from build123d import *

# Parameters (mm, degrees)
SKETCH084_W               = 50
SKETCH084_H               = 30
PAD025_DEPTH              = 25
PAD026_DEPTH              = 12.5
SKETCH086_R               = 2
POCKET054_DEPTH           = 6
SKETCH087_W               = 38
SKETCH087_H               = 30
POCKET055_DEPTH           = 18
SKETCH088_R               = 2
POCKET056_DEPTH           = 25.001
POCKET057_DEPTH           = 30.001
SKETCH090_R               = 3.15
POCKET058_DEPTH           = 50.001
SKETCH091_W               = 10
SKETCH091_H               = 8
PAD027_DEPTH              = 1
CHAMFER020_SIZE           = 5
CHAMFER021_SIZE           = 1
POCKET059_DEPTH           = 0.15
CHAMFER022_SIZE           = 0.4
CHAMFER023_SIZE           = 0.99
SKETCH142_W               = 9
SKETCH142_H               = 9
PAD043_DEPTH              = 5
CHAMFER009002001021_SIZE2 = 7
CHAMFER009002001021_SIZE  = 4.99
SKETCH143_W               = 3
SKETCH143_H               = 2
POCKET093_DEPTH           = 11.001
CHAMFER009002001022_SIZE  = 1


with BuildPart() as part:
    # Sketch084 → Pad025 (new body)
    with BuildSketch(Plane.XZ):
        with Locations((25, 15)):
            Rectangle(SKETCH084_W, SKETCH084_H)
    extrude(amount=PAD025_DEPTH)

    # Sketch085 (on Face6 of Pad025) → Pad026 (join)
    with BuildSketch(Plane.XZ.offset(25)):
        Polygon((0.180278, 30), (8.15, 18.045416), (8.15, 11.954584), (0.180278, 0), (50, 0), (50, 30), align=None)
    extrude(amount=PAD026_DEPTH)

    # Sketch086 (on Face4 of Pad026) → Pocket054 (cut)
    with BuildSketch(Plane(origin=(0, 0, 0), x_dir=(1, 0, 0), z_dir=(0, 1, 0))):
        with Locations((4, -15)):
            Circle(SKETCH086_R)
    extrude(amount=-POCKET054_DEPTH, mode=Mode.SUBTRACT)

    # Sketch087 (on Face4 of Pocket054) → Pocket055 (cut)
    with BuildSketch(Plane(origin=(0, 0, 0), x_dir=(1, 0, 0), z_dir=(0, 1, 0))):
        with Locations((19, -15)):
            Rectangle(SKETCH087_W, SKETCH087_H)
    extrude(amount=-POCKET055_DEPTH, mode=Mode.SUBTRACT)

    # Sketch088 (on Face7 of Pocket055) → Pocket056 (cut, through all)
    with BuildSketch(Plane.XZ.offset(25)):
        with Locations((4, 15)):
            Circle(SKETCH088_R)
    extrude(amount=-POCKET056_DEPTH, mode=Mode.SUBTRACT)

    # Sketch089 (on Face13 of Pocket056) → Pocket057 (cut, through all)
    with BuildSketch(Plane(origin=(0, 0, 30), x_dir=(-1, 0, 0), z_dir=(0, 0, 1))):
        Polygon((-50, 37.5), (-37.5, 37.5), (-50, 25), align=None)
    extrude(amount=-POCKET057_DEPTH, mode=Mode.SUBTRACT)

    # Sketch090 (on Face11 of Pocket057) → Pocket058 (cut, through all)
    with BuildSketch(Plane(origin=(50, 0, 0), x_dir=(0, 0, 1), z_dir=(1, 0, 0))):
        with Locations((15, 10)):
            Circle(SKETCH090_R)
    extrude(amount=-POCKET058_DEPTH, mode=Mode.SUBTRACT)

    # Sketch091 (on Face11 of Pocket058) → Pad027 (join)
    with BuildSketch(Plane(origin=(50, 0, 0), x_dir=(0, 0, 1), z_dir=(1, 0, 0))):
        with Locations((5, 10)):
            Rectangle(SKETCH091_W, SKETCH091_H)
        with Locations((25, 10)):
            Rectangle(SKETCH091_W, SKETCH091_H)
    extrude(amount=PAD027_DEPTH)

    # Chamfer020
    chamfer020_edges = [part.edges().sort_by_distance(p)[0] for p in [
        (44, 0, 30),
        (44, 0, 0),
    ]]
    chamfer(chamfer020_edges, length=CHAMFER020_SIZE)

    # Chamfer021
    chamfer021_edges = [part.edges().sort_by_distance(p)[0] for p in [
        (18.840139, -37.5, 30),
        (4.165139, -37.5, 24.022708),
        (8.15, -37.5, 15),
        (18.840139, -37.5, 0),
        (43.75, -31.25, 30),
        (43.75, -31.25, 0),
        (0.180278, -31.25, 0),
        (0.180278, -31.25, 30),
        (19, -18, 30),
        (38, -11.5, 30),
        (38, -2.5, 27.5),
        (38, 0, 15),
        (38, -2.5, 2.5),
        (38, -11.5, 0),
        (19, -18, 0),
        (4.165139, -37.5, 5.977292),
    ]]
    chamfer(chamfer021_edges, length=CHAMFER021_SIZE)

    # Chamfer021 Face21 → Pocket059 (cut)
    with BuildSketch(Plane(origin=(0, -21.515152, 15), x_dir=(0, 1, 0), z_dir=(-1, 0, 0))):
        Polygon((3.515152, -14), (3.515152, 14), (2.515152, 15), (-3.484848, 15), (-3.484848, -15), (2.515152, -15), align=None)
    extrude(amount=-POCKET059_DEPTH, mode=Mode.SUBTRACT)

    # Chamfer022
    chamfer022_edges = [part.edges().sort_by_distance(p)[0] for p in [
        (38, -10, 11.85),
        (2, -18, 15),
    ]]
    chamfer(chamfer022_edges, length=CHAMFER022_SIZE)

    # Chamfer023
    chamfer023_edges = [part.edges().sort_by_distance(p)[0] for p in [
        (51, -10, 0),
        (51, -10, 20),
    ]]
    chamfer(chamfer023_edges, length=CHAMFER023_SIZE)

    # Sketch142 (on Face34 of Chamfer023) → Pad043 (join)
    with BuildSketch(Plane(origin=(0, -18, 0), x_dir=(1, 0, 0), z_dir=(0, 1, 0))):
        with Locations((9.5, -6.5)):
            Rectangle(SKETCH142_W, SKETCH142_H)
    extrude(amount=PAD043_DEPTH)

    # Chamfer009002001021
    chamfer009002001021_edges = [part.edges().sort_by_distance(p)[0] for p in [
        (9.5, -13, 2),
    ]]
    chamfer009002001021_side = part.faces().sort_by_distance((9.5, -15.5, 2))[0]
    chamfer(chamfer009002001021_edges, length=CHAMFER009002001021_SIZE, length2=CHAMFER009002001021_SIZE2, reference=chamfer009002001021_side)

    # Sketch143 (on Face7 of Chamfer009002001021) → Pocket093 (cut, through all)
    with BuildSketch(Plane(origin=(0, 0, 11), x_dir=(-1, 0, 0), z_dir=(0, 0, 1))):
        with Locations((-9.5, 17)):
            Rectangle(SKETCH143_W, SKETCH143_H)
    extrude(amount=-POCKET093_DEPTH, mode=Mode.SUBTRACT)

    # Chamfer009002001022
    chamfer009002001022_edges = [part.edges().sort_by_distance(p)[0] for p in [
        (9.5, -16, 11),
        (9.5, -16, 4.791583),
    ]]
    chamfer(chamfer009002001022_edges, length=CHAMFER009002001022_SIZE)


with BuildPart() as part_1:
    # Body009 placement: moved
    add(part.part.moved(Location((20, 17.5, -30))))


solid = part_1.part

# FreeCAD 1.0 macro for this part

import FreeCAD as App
import Part
import Sketcher
Q = App.Units.Quantity


def edges_at(feature, points):
    """Names of the edges that pass closest to the given points."""
    edges = feature.Shape.Edges
    near = lambda p: min(range(len(edges)), key=lambda i: edges[i].distToShape(Part.Vertex(*p))[0])
    return sorted({f"Edge{near(p) + 1}" for p in points})


def add_polygon(sketch, points):
    """Adds a closed chain of lines whose ends are joined by coincident constraints."""
    first, n = sketch.GeometryCount, len(points)
    for a, b in zip(points, points[1:] + points[:1]):
        sketch.addGeometry(Part.LineSegment(App.Vector(*a, 0), App.Vector(*b, 0)), False)
    for i in range(n):
        sketch.addConstraint(Sketcher.Constraint("Coincident", first + i, 2, first + (i + 1) % n, 1))

doc = App.newDocument("Part")
body = doc.addObject("PartDesign::Body", "Body")

# Sketch on XZ plane
sketch1 = body.newObject("Sketcher::SketchObject", "Sketch")
sketch1.AttachmentSupport = (doc.getObject("XZ_Plane"), [""])
sketch1.MapMode = "FlatFace"
add_polygon(sketch1, [(0, 30), (0, 0), (50, 0), (50, 30)])  # lines 0-3
sketch1.addConstraint(Sketcher.Constraint("Vertical", 0))
sketch1.addConstraint(Sketcher.Constraint("Horizontal", 1))
sketch1.addConstraint(Sketcher.Constraint("Vertical", 2))
sketch1.addConstraint(Sketcher.Constraint("Horizontal", 3))
sketch1.addConstraint(Sketcher.Constraint("Coincident", 0, 2, -1, 1))
sketch1.addConstraint(Sketcher.Constraint("DistanceX", 1, 1, 1, 2, Q("50 mm")))
sketch1.addConstraint(Sketcher.Constraint("DistanceY", 0, 2, 0, 1, Q("30 mm")))
pad1 = body.newObject("PartDesign::Pad", "Pad")
pad1.Profile = sketch1
pad1.Length = 25

# Sketch on XZ plane
sketch2 = body.newObject("Sketcher::SketchObject", "Sketch001")
sketch2.AttachmentSupport = (doc.getObject("XZ_Plane"), [""])
sketch2.MapMode = "FlatFace"
sketch2.AttachmentOffset = App.Placement(App.Vector(0, 0, 25), App.Rotation())
add_polygon(sketch2, [(0, 30), (8, 18), (8, 12), (0, 0), (50, 0), (50, 30)])  # lines 0-5
sketch2.addConstraint(Sketcher.Constraint("Vertical", 1))
sketch2.addConstraint(Sketcher.Constraint("Horizontal", 3))
sketch2.addConstraint(Sketcher.Constraint("Vertical", 4))
sketch2.addConstraint(Sketcher.Constraint("Horizontal", 5))
sketch2.addConstraint(Sketcher.Constraint("PointOnObject", 2, 2, -1))
sketch2.addConstraint(Sketcher.Constraint("Vertical", 2, 2, 5, 2))
sketch2.addConstraint(Sketcher.Constraint("Equal", 0, 2))
sketch2.addConstraint(Sketcher.Constraint("DistanceY", 4, 1, 4, 2, Q("30 mm")))
sketch2.addConstraint(Sketcher.Constraint("DistanceX", -1, 1, 3, 2, Q("50 mm")))
sketch2.addConstraint(Sketcher.Constraint("DistanceX", -1, 1, 0, 2, Q("8.15 mm")))
sketch2.addConstraint(Sketcher.Constraint("DistanceY", 1, 2, 1, 1, Q("6.090832 mm")))
sketch2.addConstraint(Sketcher.Constraint("Distance", 0, Q("14.367621 mm")))
pad2 = body.newObject("PartDesign::Pad", "Pad001")
pad2.Profile = sketch2
pad2.Length = 12.5

# Sketch on XZ plane
sketch3 = body.newObject("Sketcher::SketchObject", "Sketch002")
sketch3.AttachmentSupport = (doc.getObject("XZ_Plane"), [""])
sketch3.MapMode = "FlatFace"
sketch3.addGeometry(Part.Circle(App.Vector(4, 15, 0), App.Vector(0, 0, 1), 2), False)
sketch3.addConstraint(Sketcher.Constraint("Diameter", 0, Q("4 mm")))
sketch3.addConstraint(Sketcher.Constraint("DistanceX", -1, 1, 0, 3, Q("4 mm")))
sketch3.addConstraint(Sketcher.Constraint("DistanceY", -1, 1, 0, 3, Q("15 mm")))
pocket1 = body.newObject("PartDesign::Pocket", "Pocket")
pocket1.Profile = sketch3
pocket1.Length = 6
pocket1.Reversed = True

# Sketch on XZ plane
sketch4 = body.newObject("Sketcher::SketchObject", "Sketch003")
sketch4.AttachmentSupport = (doc.getObject("XZ_Plane"), [""])
sketch4.MapMode = "FlatFace"
add_polygon(sketch4, [(0, 0), (0, 30), (38, 30), (38, 0)])  # lines 0-3
sketch4.addConstraint(Sketcher.Constraint("Vertical", 0))
sketch4.addConstraint(Sketcher.Constraint("Horizontal", 1))
sketch4.addConstraint(Sketcher.Constraint("Vertical", 2))
sketch4.addConstraint(Sketcher.Constraint("Horizontal", 3))
sketch4.addConstraint(Sketcher.Constraint("Coincident", 3, 2, -1, 1))
sketch4.addConstraint(Sketcher.Constraint("DistanceX", 1, 1, 1, 2, Q("38 mm")))
sketch4.addConstraint(Sketcher.Constraint("DistanceY", 0, 1, 0, 2, Q("30 mm")))
pocket2 = body.newObject("PartDesign::Pocket", "Pocket001")
pocket2.Profile = sketch4
pocket2.Length = 18
pocket2.Reversed = True

# Sketch on XZ plane
sketch5 = body.newObject("Sketcher::SketchObject", "Sketch004")
sketch5.AttachmentSupport = (doc.getObject("XZ_Plane"), [""])
sketch5.MapMode = "FlatFace"
sketch5.AttachmentOffset = App.Placement(App.Vector(0, 0, 25), App.Rotation())
sketch5.addGeometry(Part.Circle(App.Vector(4, 15, 0), App.Vector(0, 0, 1), 2), False)
sketch5.addConstraint(Sketcher.Constraint("Diameter", 0, Q("4 mm")))
sketch5.addConstraint(Sketcher.Constraint("DistanceX", -1, 1, 0, 3, Q("4 mm")))
sketch5.addConstraint(Sketcher.Constraint("DistanceY", -1, 1, 0, 3, Q("15 mm")))
pocket3 = body.newObject("PartDesign::Pocket", "Pocket002")
pocket3.Profile = sketch5
pocket3.Type = "ThroughAll"

# Sketch on XY plane
sketch6 = body.newObject("Sketcher::SketchObject", "Sketch005")
sketch6.AttachmentSupport = (doc.getObject("XY_Plane"), [""])
sketch6.MapMode = "FlatFace"
sketch6.AttachmentOffset = App.Placement(App.Vector(0, 0, 30), App.Rotation())
add_polygon(sketch6, [(38, -38), (50, -38), (50, -25)])  # lines 0-2
sketch6.addConstraint(Sketcher.Constraint("Horizontal", 0))
sketch6.addConstraint(Sketcher.Constraint("Vertical", 1))
sketch6.addConstraint(Sketcher.Constraint("Equal", 0, 1))
sketch6.addConstraint(Sketcher.Constraint("DistanceX", 0, 1, 0, 2, Q("12.5 mm")))
sketch6.addConstraint(Sketcher.Constraint("DistanceX", -1, 1, 0, 2, Q("50 mm")))
sketch6.addConstraint(Sketcher.Constraint("DistanceY", 1, 2, -1, 1, Q("25 mm")))
pocket4 = body.newObject("PartDesign::Pocket", "Pocket003")
pocket4.Profile = sketch6
pocket4.Type = "ThroughAll"

# Sketch on YZ plane
sketch7 = body.newObject("Sketcher::SketchObject", "Sketch006")
sketch7.AttachmentSupport = (doc.getObject("YZ_Plane"), [""])
sketch7.MapMode = "FlatFace"
sketch7.AttachmentOffset = App.Placement(App.Vector(0, 0, 50), App.Rotation())
sketch7.addGeometry(Part.Circle(App.Vector(-10, 15, 0), App.Vector(0, 0, 1), 3.1), False)
sketch7.addConstraint(Sketcher.Constraint("Diameter", 0, Q("6.3 mm")))
sketch7.addConstraint(Sketcher.Constraint("DistanceX", 0, 3, -1, 1, Q("10 mm")))
sketch7.addConstraint(Sketcher.Constraint("DistanceY", -1, 1, 0, 3, Q("15 mm")))
pocket5 = body.newObject("PartDesign::Pocket", "Pocket004")
pocket5.Profile = sketch7
pocket5.Type = "ThroughAll"

# Sketch on YZ plane
sketch8 = body.newObject("Sketcher::SketchObject", "Sketch007")
sketch8.AttachmentSupport = (doc.getObject("YZ_Plane"), [""])
sketch8.MapMode = "FlatFace"
sketch8.AttachmentOffset = App.Placement(App.Vector(0, 0, 50), App.Rotation())
add_polygon(sketch8, [(-14, 0), (-6, 0), (-6, 10), (-14, 10)])  # lines 0-3
add_polygon(sketch8, [(-14, 20), (-6, 20), (-6, 30), (-14, 30)])  # lines 4-7
sketch8.addConstraint(Sketcher.Constraint("Horizontal", 0))
sketch8.addConstraint(Sketcher.Constraint("Vertical", 1))
sketch8.addConstraint(Sketcher.Constraint("Horizontal", 2))
sketch8.addConstraint(Sketcher.Constraint("Vertical", 3))
sketch8.addConstraint(Sketcher.Constraint("Horizontal", 4))
sketch8.addConstraint(Sketcher.Constraint("Vertical", 5))
sketch8.addConstraint(Sketcher.Constraint("Horizontal", 6))
sketch8.addConstraint(Sketcher.Constraint("Vertical", 7))
sketch8.addConstraint(Sketcher.Constraint("PointOnObject", 0, 2, -1))
sketch8.addConstraint(Sketcher.Constraint("Vertical", 1, 2, 4, 2))
sketch8.addConstraint(Sketcher.Constraint("Vertical", 3, 2, 6, 2))
sketch8.addConstraint(Sketcher.Constraint("Equal", 3, 5))
sketch8.addConstraint(Sketcher.Constraint("DistanceX", 0, 1, 0, 2, Q("8 mm")))
sketch8.addConstraint(Sketcher.Constraint("DistanceY", 1, 1, 1, 2, Q("10 mm")))
sketch8.addConstraint(Sketcher.Constraint("DistanceX", 0, 2, -1, 1, Q("6 mm")))
sketch8.addConstraint(Sketcher.Constraint("DistanceY", -1, 1, 4, 2, Q("20 mm")))
pad3 = body.newObject("PartDesign::Pad", "Pad002")
pad3.Profile = sketch8
pad3.Length = 1
doc.recompute()

chamfer = body.newObject("PartDesign::Chamfer", "Chamfer")
chamfer.Base = (pad3, edges_at(pad3, [(44, 0, 30), (44, 0, 0)]))
chamfer.Size = 5
doc.recompute()

chamfer2 = body.newObject("PartDesign::Chamfer", "Chamfer001")
chamfer2.Base = (chamfer, edges_at(chamfer, [
    (18.84, -37.5, 30),
    (4.165, -37.5, 24.023),
    (8.15, -37.5, 15),
    (18.84, -37.5, 0),
    (43.75, -31.25, 30),
    (43.75, -31.25, 0),
    (0.18, -31.25, 0),
    (0.18, -31.25, 30),
    (19, -18, 30),
    (38, -11.5, 30),
    (38, -2.5, 27.5),
    (38, 0, 15),
    (38, -2.5, 2.5),
    (38, -11.5, 0),
    (19, -18, 0),
    (4.165, -37.5, 5.977),
]))
chamfer2.Size = 1

# Sketch on YZ plane
sketch9 = body.newObject("Sketcher::SketchObject", "Sketch008")
sketch9.AttachmentSupport = (doc.getObject("YZ_Plane"), [""])
sketch9.MapMode = "FlatFace"
add_polygon(sketch9, [(-18, 29), (-18, 1), (-19, 0), (-25, 0), (-25, 30), (-19, 30)])  # lines 0-5
sketch9.addConstraint(Sketcher.Constraint("Vertical", 0))
sketch9.addConstraint(Sketcher.Constraint("Horizontal", 2))
sketch9.addConstraint(Sketcher.Constraint("Vertical", 3))
sketch9.addConstraint(Sketcher.Constraint("Horizontal", 4))
sketch9.addConstraint(Sketcher.Constraint("PointOnObject", 1, 2, -1))
sketch9.addConstraint(Sketcher.Constraint("Perpendicular", 1, 5))
sketch9.addConstraint(Sketcher.Constraint("Vertical", 1, 2, 4, 2))
sketch9.addConstraint(Sketcher.Constraint("Equal", 1, 5))
sketch9.addConstraint(Sketcher.Constraint("DistanceX", 2, 2, 2, 1, Q("6 mm")))
sketch9.addConstraint(Sketcher.Constraint("DistanceY", 0, 2, 0, 1, Q("28 mm")))
sketch9.addConstraint(Sketcher.Constraint("DistanceY", 3, 1, 3, 2, Q("30 mm")))
sketch9.addConstraint(Sketcher.Constraint("DistanceX", 0, 2, -1, 1, Q("18 mm")))
pocket6 = body.newObject("PartDesign::Pocket", "Pocket005")
pocket6.Profile = sketch9
pocket6.Length = 0.15
pocket6.Reversed = True
doc.recompute()

chamfer3 = body.newObject("PartDesign::Chamfer", "Chamfer002")
chamfer3.Base = (pocket6, edges_at(pocket6, [(38, -10, 11.85), (2, -18, 15)]))
chamfer3.Size = 0.4
doc.recompute()

chamfer4 = body.newObject("PartDesign::Chamfer", "Chamfer003")
chamfer4.Base = (chamfer3, edges_at(chamfer3, [(51, -10, 0), (51, -10, 20)]))
chamfer4.Size = 0.99

# Sketch on XZ plane
sketch10 = body.newObject("Sketcher::SketchObject", "Sketch009")
sketch10.AttachmentSupport = (doc.getObject("XZ_Plane"), [""])
sketch10.MapMode = "FlatFace"
sketch10.AttachmentOffset = App.Placement(App.Vector(0, 0, 18), App.Rotation())
add_polygon(sketch10, [(5, 2), (5, 11), (14, 11), (14, 2)])  # lines 0-3
sketch10.addConstraint(Sketcher.Constraint("Vertical", 0))
sketch10.addConstraint(Sketcher.Constraint("Horizontal", 1))
sketch10.addConstraint(Sketcher.Constraint("Vertical", 2))
sketch10.addConstraint(Sketcher.Constraint("Horizontal", 3))
sketch10.addConstraint(Sketcher.Constraint("Equal", 3, 0))
sketch10.addConstraint(Sketcher.Constraint("DistanceX", 1, 1, 1, 2, Q("9 mm")))
sketch10.addConstraint(Sketcher.Constraint("DistanceX", -1, 1, 0, 2, Q("5 mm")))
sketch10.addConstraint(Sketcher.Constraint("DistanceY", -1, 1, 0, 2, Q("11 mm")))
pad4 = body.newObject("PartDesign::Pad", "Pad003")
pad4.Profile = sketch10
pad4.Length = 5
pad4.Reversed = True
doc.recompute()

chamfer5 = body.newObject("PartDesign::Chamfer", "Chamfer004")
chamfer5.Base = (pad4, edges_at(pad4, [(9.5, -13, 2)]))
chamfer5.ChamferType = "Two distances"
chamfer5.Size = 4.99
chamfer5.Size2 = 7

# Sketch on XY plane
sketch11 = body.newObject("Sketcher::SketchObject", "Sketch010")
sketch11.AttachmentSupport = (doc.getObject("XY_Plane"), [""])
sketch11.MapMode = "FlatFace"
sketch11.AttachmentOffset = App.Placement(App.Vector(0, 0, 11), App.Rotation())
add_polygon(sketch11, [(11, -18), (11, -16), (8, -16), (8, -18)])  # lines 0-3
sketch11.addConstraint(Sketcher.Constraint("Vertical", 0))
sketch11.addConstraint(Sketcher.Constraint("Horizontal", 1))
sketch11.addConstraint(Sketcher.Constraint("Vertical", 2))
sketch11.addConstraint(Sketcher.Constraint("Horizontal", 3))
sketch11.addConstraint(Sketcher.Constraint("DistanceX", 1, 2, 1, 1, Q("3 mm")))
sketch11.addConstraint(Sketcher.Constraint("DistanceY", 0, 1, 0, 2, Q("2 mm")))
sketch11.addConstraint(Sketcher.Constraint("DistanceX", -1, 1, 0, 2, Q("11 mm")))
sketch11.addConstraint(Sketcher.Constraint("DistanceY", 0, 2, -1, 1, Q("16 mm")))
pocket7 = body.newObject("PartDesign::Pocket", "Pocket006")
pocket7.Profile = sketch11
pocket7.Type = "ThroughAll"
doc.recompute()

chamfer6 = body.newObject("PartDesign::Chamfer", "Chamfer005")
chamfer6.Base = (pocket7, edges_at(pocket7, [(9.5, -16, 11), (9.5, -16, 4.792)]))
chamfer6.Size = 1
body2 = doc.addObject("PartDesign::Body", "Body001")
doc.recompute()

body.Placement = App.Placement(App.Vector(20, 17.5, -30), App.Rotation(App.Vector(0, 0, 1), 0))
boolean = body2.newObject("PartDesign::Boolean", "Boolean")
boolean.Type = "Fuse"
boolean.addObjects([body])

doc.recompute()
